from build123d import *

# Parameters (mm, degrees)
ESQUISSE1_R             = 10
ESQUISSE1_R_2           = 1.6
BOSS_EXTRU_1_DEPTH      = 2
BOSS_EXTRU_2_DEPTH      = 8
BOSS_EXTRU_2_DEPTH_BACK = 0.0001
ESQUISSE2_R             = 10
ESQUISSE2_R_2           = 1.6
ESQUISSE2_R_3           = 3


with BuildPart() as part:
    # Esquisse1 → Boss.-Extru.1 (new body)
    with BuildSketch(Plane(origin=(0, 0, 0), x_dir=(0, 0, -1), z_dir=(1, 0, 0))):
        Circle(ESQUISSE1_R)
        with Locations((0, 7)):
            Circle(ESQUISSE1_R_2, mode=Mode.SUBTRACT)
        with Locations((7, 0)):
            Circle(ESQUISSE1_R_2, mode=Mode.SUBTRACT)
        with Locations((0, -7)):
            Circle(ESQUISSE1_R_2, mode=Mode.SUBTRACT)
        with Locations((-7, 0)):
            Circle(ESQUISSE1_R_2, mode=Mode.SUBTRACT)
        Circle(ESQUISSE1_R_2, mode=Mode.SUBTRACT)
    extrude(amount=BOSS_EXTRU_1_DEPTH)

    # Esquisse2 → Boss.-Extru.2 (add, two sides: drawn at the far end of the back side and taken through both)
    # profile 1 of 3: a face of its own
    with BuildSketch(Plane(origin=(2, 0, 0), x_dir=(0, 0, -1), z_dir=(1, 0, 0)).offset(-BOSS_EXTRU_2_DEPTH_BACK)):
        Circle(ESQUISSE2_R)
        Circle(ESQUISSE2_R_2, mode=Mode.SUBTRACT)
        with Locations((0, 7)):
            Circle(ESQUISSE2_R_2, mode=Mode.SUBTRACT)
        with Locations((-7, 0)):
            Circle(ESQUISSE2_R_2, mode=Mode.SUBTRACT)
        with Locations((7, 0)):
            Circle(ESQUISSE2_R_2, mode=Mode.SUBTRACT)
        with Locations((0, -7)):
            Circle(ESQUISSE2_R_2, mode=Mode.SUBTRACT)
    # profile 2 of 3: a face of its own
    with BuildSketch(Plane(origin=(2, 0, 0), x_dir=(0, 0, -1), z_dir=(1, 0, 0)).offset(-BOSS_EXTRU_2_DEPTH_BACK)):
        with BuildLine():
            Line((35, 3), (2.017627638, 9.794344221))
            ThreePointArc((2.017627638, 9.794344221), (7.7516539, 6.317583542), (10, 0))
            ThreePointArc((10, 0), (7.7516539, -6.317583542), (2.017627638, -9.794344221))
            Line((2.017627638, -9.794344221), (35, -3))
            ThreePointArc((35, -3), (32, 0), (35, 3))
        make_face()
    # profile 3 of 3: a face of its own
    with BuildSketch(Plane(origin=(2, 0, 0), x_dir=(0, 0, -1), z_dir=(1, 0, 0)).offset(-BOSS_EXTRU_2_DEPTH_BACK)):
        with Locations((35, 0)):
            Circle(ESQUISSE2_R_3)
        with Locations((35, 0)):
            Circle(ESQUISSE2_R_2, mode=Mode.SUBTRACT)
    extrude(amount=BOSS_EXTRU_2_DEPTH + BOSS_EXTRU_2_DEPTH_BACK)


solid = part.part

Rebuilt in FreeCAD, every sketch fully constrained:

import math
import FreeCAD as App
import Part
import Sketcher
from FreeCAD import Vector
Q = App.Units.Quantity

doc = App.newDocument("Part")
body = doc.addObject("PartDesign::Body", "Body")

# Sketch on YZ plane
sketch1 = doc.addObject("Sketcher::SketchObject", "Sketch")
body.addObject(sketch1)
sketch1.AttachmentSupport = (doc.YZ_Plane, [""])
sketch1.MapMode = "FlatFace"
sketch1.addGeometry([
    Part.Circle(Vector(0, 0, 0), Vector(0, 0, 1), 10),  # 0
    Part.Circle(Vector(-7, 0, 0), Vector(0, 0, 1), 1.6),  # 1
    Part.Circle(Vector(0, 7, 0), Vector(0, 0, 1), 1.6),  # 2
    Part.Circle(Vector(0, 0, 0), Vector(0, 0, 1), 1.6),  # 3
    Part.Circle(Vector(7, 0, 0), Vector(0, 0, 1), 1.6),  # 4
    Part.Circle(Vector(0, -7, 0), Vector(0, 0, 1), 1.6),  # 5
], False)
sketch1.addConstraint([
    Sketcher.Constraint("Coincident", 0, 3, -1, 1),
    Sketcher.Constraint("Coincident", 3, 3, -1, 1),
    Sketcher.Constraint("Equal", 1, 2),
    Sketcher.Constraint("Equal", 2, 3),
    Sketcher.Constraint("Equal", 3, 4),
    Sketcher.Constraint("Equal", 4, 5),
    Sketcher.Constraint("Symmetric", 1, 3, 4, 3, -1, 1),
    Sketcher.Constraint("Symmetric", 2, 3, 5, 3, -1, 1),
    Sketcher.Constraint("PointOnObject", 1, 3, -1),
    Sketcher.Constraint("PointOnObject", 2, 3, -2),
    Sketcher.Constraint("Diameter", 0, Q("20 mm")),
    Sketcher.Constraint("Diameter", 1, Q("3.2 mm")),
    Sketcher.Constraint("DistanceX", 1, 3, -1, 1, Q("7 mm")),
    Sketcher.Constraint("DistanceY", -1, 1, 2, 3, Q("7 mm")),
])
pad1 = doc.addObject("PartDesign::Pad", "Pad")
body.addObject(pad1)
pad1.Profile = sketch1
pad1.Length = 2

# Sketch on YZ plane
sketch2 = doc.addObject("Sketcher::SketchObject", "Sketch001")
body.addObject(sketch2)
sketch2.AttachmentSupport = (doc.YZ_Plane, [""])
sketch2.MapMode = "FlatFace"
sketch2.AttachmentOffset = App.Placement(Vector(0, 0, 2), App.Rotation())
sketch2.addGeometry([
    Part.ArcOfCircle(Part.Circle(Vector(0, 0, 0), Vector(0, 0, 1), 10), math.radians(-12), math.radians(192)),  # 0
    Part.LineSegment(Vector(-9.8, -2, 0), Vector(-3, -35, 0)),  # 1
    Part.ArcOfCircle(Part.Circle(Vector(0, -35, 0), Vector(0, 0, 1), 3), math.radians(180), math.radians(360)),  # 2
    Part.LineSegment(Vector(3, -35, 0), Vector(9.8, -2, 0)),  # 3
    Part.Circle(Vector(-7, 0, 0), Vector(0, 0, 1), 1.6),  # 4
    Part.Circle(Vector(0, 7, 0), Vector(0, 0, 1), 1.6),  # 5
    Part.Circle(Vector(0, 0, 0), Vector(0, 0, 1), 1.6),  # 6
    Part.Circle(Vector(7, 0, 0), Vector(0, 0, 1), 1.6),  # 7
    Part.Circle(Vector(0, -7, 0), Vector(0, 0, 1), 1.6),  # 8
    Part.Circle(Vector(0, -35, 0), Vector(0, 0, 1), 1.6),  # 9
], False)
sketch2.addConstraint([
    Sketcher.Constraint("Tangent", 0, 2, 1, 1),
    Sketcher.Constraint("Coincident", 1, 2, 2, 1),
    Sketcher.Constraint("Coincident", 2, 2, 3, 1),
    Sketcher.Constraint("Tangent", 3, 2, 0, 1),
    Sketcher.Constraint("Coincident", 0, 3, -1, 1),
    Sketcher.Constraint("Coincident", 6, 3, -1, 1),
    Sketcher.Constraint("Coincident", 9, 3, 2, 3),
    Sketcher.Constraint("Equal", 4, 5),
    Sketcher.Constraint("Equal", 5, 6),
    Sketcher.Constraint("Equal", 6, 7),
    Sketcher.Constraint("Equal", 7, 8),
    Sketcher.Constraint("Equal", 8, 9),
    Sketcher.Constraint("Symmetric", 4, 3, 7, 3, -1, 1),
    Sketcher.Constraint("Symmetric", 5, 3, 8, 3, -1, 1),
    Sketcher.Constraint("Symmetric", 1, 2, 2, 2, -2),
    Sketcher.Constraint("PointOnObject", 4, 3, -1),
    Sketcher.Constraint("PointOnObject", 5, 3, -2),
    Sketcher.Constraint("Horizontal", 9, 3, 1, 2),
    Sketcher.Constraint("Radius", 0, Q("10 mm")),
    Sketcher.Constraint("Radius", 2, Q("3 mm")),
    Sketcher.Constraint("Diameter", 4, Q("3.2 mm")),
    Sketcher.Constraint("DistanceY", 2, 3, -1, 1, Q("35 mm")),
    Sketcher.Constraint("DistanceX", 4, 3, -1, 1, Q("7 mm")),
    Sketcher.Constraint("DistanceY", -1, 1, 5, 3, Q("7 mm")),
])
pad2 = doc.addObject("PartDesign::Pad", "Pad001")
body.addObject(pad2)
pad2.Profile = sketch2
pad2.Type = "TwoLengths"
pad2.Length = 8
pad2.Length2 = 0.0001

doc.recompute()
